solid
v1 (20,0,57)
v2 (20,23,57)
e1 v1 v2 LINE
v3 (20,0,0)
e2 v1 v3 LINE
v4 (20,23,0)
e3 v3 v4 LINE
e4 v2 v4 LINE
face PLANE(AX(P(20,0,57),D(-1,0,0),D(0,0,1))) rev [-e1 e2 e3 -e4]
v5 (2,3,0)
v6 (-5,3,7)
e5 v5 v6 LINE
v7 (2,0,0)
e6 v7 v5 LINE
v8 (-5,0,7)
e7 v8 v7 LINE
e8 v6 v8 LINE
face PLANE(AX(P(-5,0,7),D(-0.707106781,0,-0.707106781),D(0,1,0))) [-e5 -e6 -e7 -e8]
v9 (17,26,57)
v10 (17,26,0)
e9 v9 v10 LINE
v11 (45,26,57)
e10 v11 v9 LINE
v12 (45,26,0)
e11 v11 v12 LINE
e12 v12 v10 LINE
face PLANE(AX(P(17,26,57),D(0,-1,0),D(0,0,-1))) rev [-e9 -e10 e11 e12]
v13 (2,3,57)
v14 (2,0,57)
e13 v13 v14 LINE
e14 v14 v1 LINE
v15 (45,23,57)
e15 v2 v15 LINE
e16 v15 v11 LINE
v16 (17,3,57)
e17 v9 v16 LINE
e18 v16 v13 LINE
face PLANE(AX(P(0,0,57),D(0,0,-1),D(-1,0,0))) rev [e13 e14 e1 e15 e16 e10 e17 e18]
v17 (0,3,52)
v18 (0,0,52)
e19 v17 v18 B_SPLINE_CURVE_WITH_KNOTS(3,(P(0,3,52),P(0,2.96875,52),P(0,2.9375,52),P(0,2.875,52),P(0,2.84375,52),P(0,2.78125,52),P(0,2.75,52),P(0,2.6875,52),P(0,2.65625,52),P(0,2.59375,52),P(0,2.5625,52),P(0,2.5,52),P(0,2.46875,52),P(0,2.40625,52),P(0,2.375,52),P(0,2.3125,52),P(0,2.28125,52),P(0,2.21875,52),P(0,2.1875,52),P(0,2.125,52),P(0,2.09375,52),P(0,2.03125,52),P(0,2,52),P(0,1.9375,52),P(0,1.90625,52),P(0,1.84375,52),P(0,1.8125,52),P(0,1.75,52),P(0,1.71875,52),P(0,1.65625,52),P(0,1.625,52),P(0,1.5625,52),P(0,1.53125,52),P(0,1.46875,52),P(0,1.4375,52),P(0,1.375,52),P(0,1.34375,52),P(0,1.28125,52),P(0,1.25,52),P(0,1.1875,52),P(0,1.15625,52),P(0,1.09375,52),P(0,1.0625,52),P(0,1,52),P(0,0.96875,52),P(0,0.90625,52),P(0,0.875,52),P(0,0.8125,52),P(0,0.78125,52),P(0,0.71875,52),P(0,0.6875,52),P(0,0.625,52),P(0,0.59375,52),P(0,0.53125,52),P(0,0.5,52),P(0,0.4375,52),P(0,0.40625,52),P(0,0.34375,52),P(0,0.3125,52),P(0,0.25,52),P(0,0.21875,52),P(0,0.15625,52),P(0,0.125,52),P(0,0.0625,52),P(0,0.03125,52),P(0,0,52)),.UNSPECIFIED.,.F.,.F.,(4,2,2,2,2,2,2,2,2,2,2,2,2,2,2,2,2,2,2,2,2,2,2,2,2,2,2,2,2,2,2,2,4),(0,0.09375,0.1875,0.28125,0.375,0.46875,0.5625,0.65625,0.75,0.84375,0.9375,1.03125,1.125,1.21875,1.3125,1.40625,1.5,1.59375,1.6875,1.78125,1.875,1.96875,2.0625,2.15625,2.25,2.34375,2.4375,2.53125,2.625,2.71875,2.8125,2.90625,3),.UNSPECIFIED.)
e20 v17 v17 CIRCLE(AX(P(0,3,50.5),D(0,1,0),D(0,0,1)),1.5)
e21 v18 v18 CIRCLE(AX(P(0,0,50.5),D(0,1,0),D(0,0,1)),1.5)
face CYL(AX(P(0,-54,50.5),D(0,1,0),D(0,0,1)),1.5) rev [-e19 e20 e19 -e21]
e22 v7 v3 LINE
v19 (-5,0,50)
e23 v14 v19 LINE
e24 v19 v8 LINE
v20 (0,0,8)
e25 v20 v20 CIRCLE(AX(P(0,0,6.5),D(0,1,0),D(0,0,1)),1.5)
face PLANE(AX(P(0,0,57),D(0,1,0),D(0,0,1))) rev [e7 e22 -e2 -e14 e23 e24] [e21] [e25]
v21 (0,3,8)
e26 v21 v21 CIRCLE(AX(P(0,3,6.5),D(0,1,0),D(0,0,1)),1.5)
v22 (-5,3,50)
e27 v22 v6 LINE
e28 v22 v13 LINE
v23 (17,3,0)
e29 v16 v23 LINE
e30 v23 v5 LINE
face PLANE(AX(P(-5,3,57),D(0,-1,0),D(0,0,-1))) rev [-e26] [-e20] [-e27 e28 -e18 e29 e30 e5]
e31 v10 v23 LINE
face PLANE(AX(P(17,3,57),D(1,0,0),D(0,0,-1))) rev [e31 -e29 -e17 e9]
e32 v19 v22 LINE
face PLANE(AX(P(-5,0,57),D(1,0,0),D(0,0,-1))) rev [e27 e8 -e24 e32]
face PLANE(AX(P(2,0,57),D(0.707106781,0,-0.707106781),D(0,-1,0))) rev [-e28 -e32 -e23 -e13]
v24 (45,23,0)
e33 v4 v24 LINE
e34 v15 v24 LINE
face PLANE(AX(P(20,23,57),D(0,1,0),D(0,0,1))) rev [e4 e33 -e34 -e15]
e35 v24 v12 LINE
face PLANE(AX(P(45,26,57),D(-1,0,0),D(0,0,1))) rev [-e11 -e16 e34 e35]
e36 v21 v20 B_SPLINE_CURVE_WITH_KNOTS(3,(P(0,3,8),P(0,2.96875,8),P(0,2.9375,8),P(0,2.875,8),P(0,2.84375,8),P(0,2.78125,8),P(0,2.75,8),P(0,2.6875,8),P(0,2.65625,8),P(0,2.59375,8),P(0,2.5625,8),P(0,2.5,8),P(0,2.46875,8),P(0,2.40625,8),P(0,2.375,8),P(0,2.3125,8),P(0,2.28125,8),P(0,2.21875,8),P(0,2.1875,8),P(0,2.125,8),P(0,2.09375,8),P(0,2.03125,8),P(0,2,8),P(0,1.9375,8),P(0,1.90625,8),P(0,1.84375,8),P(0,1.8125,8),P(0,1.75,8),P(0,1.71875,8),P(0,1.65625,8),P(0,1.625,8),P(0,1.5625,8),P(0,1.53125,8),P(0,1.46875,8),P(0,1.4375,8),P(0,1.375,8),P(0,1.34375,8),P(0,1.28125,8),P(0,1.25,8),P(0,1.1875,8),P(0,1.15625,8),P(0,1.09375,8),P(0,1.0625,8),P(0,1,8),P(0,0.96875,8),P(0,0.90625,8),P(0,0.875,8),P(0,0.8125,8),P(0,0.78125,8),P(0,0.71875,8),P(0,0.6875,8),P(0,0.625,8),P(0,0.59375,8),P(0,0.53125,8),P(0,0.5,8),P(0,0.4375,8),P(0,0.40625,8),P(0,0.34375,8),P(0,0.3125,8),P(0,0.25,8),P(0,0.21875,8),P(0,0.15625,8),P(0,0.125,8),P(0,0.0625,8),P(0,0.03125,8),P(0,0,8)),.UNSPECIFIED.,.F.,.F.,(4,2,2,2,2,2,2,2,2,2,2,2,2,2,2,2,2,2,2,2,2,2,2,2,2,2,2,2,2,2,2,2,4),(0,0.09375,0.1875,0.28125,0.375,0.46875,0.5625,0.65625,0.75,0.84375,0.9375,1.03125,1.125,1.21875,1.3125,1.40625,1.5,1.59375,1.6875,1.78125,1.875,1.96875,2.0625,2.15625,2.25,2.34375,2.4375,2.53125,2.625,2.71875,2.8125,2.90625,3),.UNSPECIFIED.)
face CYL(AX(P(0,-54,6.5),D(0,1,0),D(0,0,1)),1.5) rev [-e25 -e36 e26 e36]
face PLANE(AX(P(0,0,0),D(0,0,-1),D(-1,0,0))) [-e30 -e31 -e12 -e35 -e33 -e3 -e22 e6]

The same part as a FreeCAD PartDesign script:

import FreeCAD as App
import Part
import Sketcher
Q = App.Units.Quantity


def edges_at(feature, points):
    """Names of the edges that pass closest to the given points."""
    edges = feature.Shape.Edges
    near = lambda p: min(range(len(edges)), key=lambda i: edges[i].distToShape(Part.Vertex(*p))[0])
    return sorted({f"Edge{near(p) + 1}" for p in points})


def add_polygon(sketch, points):
    """Adds a closed chain of lines whose ends are joined by coincident constraints."""
    first, n = sketch.GeometryCount, len(points)
    for a, b in zip(points, points[1:] + points[:1]):
        sketch.addGeometry(Part.LineSegment(App.Vector(*a, 0), App.Vector(*b, 0)), False)
    for i in range(n):
        sketch.addConstraint(Sketcher.Constraint("Coincident", first + i, 2, first + (i + 1) % n, 1))

doc = App.newDocument("Part")
body = doc.addObject("PartDesign::Body", "Body")

sketch1 = body.newObject("Sketcher::SketchObject", "Sketch")
sketch1.AttachmentSupport = (doc.getObject("XY_Plane"), [""])
sketch1.MapMode = "FlatFace"
add_polygon(sketch1, [(20, 0), (20, 23), (45, 23), (45, 26), (17, 26), (17, 3), (-5, 3), (-5, 0)])
sketch1.addConstraint([
    Sketcher.Constraint("Vertical", 0),
    Sketcher.Constraint("Horizontal", 1),
    Sketcher.Constraint("Vertical", 2),
    Sketcher.Constraint("Horizontal", 3),
    Sketcher.Constraint("Vertical", 4),
    Sketcher.Constraint("Horizontal", 5),
    Sketcher.Constraint("Vertical", 6),
    Sketcher.Constraint("Horizontal", 7),
    Sketcher.Constraint("PointOnObject", 6, 2, -1),
    Sketcher.Constraint("Equal", 1, 7),
    Sketcher.Constraint("Equal", 0, 4),
    Sketcher.Constraint("DistanceX", 1, 1, 1, 2, Q("25 mm")),
    Sketcher.Constraint("DistanceX", 3, 2, 3, 1, Q("28 mm")),
    Sketcher.Constraint("DistanceY", 0, 1, 0, 2, Q("23 mm")),
    Sketcher.Constraint("DistanceY", 2, 1, 2, 2, Q("3 mm")),
    Sketcher.Constraint("DistanceX", -1, 1, 0, 2, Q("20 mm")),
])
pad1 = body.newObject("PartDesign::Pad", "Pad")
pad1.Profile = sketch1
pad1.Length = 57

sketch2 = body.newObject("Sketcher::SketchObject", "Sketch001")
sketch2.AttachmentSupport = (doc.getObject("XZ_Plane"), [""])
sketch2.MapMode = "FlatFace"
sketch2.AttachmentOffset = App.Placement(App.Vector(0, 0, -3), App.Rotation())
sketch2.addGeometry([
    Part.Circle(App.Vector(0, 50.5, 0), App.Vector(0, 0, 1), 1.5),
    Part.Circle(App.Vector(0, 6.5, 0), App.Vector(0, 0, 1), 1.5),
], False)
sketch2.addConstraint([
    Sketcher.Constraint("Equal", 0, 1),
    Sketcher.Constraint("PointOnObject", 0, 3, -2),
    Sketcher.Constraint("PointOnObject", 1, 3, -2),
    Sketcher.Constraint("Diameter", 0, Q("3 mm")),
    Sketcher.Constraint("DistanceY", 1, 3, 0, 3, Q("44 mm")),
    Sketcher.Constraint("DistanceY", -1, 1, 0, 3, Q("50.5 mm")),
])
pocket1 = body.newObject("PartDesign::Pocket", "Pocket")
pocket1.Profile = sketch2
pocket1.Length = 57
pocket1.Reversed = True
doc.recompute()

chamfer = body.newObject("PartDesign::Chamfer", "Chamfer")
chamfer.Base = (pocket1, edges_at(pocket1, [(-5, 1.5, 57), (-5, 1.5, 0)]))
chamfer.Size = 7

doc.recompute()
